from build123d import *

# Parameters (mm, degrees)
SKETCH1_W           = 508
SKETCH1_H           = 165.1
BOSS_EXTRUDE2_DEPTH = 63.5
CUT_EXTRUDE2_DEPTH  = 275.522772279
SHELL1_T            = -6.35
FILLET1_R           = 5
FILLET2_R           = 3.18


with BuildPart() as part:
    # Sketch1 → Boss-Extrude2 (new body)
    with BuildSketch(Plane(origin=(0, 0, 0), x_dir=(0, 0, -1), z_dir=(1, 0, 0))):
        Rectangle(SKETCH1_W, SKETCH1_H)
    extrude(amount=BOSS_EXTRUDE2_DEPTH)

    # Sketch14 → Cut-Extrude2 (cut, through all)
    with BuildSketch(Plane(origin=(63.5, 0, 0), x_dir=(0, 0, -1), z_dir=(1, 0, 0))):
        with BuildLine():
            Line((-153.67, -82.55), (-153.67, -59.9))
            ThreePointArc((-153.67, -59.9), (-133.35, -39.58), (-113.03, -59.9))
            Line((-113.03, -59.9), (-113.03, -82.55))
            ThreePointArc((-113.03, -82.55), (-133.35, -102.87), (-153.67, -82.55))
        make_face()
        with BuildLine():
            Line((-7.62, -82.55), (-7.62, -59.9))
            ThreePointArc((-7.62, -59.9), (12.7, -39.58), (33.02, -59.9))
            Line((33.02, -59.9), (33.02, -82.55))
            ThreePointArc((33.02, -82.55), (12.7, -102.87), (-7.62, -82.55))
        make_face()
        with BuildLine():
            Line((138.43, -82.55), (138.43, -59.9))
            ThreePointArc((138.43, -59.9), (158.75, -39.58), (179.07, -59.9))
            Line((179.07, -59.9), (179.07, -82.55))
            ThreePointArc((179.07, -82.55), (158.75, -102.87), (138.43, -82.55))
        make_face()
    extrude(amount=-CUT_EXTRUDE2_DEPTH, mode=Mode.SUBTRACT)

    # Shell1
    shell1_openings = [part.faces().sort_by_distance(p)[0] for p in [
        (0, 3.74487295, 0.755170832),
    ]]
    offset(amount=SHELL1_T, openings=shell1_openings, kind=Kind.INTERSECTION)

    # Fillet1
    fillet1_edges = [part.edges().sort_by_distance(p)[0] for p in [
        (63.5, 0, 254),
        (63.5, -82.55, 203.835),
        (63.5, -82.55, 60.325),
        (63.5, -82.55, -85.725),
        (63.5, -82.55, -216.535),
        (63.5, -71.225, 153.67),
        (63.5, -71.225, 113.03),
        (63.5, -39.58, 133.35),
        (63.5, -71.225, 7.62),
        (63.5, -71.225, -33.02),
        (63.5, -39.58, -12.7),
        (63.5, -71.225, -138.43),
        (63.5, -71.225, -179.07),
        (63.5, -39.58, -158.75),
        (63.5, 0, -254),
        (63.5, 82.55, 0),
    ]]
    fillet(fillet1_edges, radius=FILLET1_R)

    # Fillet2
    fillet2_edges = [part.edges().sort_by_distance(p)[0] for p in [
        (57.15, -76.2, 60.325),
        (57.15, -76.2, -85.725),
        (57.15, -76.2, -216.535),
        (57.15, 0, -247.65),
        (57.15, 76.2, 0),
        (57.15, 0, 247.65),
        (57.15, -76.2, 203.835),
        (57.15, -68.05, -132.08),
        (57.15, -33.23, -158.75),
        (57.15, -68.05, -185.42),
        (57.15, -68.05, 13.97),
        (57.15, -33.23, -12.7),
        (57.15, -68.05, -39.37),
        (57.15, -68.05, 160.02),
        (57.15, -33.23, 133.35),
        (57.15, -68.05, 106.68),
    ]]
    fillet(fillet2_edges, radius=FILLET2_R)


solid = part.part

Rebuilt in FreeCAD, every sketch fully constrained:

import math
import FreeCAD as App
import Part
import Sketcher

V = App.Vector
Q = App.Units.Quantity


def edges_at(feature, points):
    """Names of the edges that pass closest to the given points."""
    edges = feature.Shape.Edges
    near = lambda p: min(range(len(edges)), key=lambda i: edges[i].distToShape(Part.Vertex(*p))[0])
    return sorted({f"Edge{near(p) + 1}" for p in points})


def faces_at(feature, points):
    """Names of the faces that lie closest to the given points."""
    faces = feature.Shape.Faces
    near = lambda p: min(range(len(faces)), key=lambda i: faces[i].distToShape(Part.Vertex(*p))[0])
    return sorted({f"Face{near(p) + 1}" for p in points})


def add_polygon(sketch, points):
    """Adds a closed chain of lines whose ends are joined by coincident constraints."""
    first, n = sketch.GeometryCount, len(points)
    for a, b in zip(points, points[1:] + points[:1]):
        sketch.addGeometry(Part.LineSegment(App.Vector(*a, 0), App.Vector(*b, 0)), False)
    for i in range(n):
        sketch.addConstraint(Sketcher.Constraint("Coincident", first + i, 2, first + (i + 1) % n, 1))

doc = App.newDocument("Part")
body = doc.addObject("PartDesign::Body", "Body")

sketch1 = body.newObject("Sketcher::SketchObject", "Sketch")
sketch1.AttachmentSupport = (doc.getObject("YZ_Plane"), [""])
sketch1.MapMode = "FlatFace"
add_polygon(sketch1, [(82.55, 254), (-82.55, 254), (-82.55, -254), (82.55, -254)])
sketch1.addConstraint(Sketcher.Constraint("Horizontal", 0))
sketch1.addConstraint(Sketcher.Constraint("Vertical", 1))
sketch1.addConstraint(Sketcher.Constraint("Horizontal", 2))
sketch1.addConstraint(Sketcher.Constraint("Vertical", 3))
sketch1.addConstraint(Sketcher.Constraint("Symmetric", 0, 2, 2, 2, -1, 1))
sketch1.addConstraint(Sketcher.Constraint("DistanceY", 1, 2, 1, 1, Q("20 in")))
sketch1.addConstraint(Sketcher.Constraint("DistanceX", 0, 2, 0, 1, Q("6.5 in")))
pad1 = body.newObject("PartDesign::Pad", "Pad")
pad1.Profile = sketch1
pad1.Length = Q("2.5 in")

sketch2 = body.newObject("Sketcher::SketchObject", "Sketch001")
sketch2.AttachmentSupport = (doc.getObject("YZ_Plane"), [""])
sketch2.MapMode = "FlatFace"
sketch2.AttachmentOffset = App.Placement(V(0, 0, 2.5 * 25.4), App.Rotation())
sketch2.addGeometry(Part.LineSegment(V(-59.9, 153.67, 0), V(-82.55, 153.67, 0)), False)
sketch2.addGeometry(Part.ArcOfCircle(Part.Circle(V(-82.55, 133.35, 0), V(0, 0, 1), 20.32), math.radians(90), math.radians(270)), False)
sketch2.addGeometry(Part.LineSegment(V(-82.55, 113.03, 0), V(-59.9, 113.03, 0)), False)
sketch2.addGeometry(Part.ArcOfCircle(Part.Circle(V(-59.9, 133.35, 0), V(0, 0, 1), 20.32), math.radians(-90), math.radians(90)), False)
sketch2.addGeometry(Part.LineSegment(V(-59.9, 7.62, 0), V(-82.55, 7.62, 0)), False)
sketch2.addGeometry(Part.ArcOfCircle(Part.Circle(V(-82.55, -12.7, 0), V(0, 0, 1), 20.32), math.radians(90), math.radians(270)), False)
sketch2.addGeometry(Part.LineSegment(V(-82.55, -33.02, 0), V(-59.9, -33.02, 0)), False)
sketch2.addGeometry(Part.ArcOfCircle(Part.Circle(V(-59.9, -12.7, 0), V(0, 0, 1), 20.32), math.radians(-90), math.radians(90)), False)
sketch2.addGeometry(Part.LineSegment(V(-59.9, -138.43, 0), V(-82.55, -138.43, 0)), False)
sketch2.addGeometry(Part.ArcOfCircle(Part.Circle(V(-82.55, -158.75, 0), V(0, 0, 1), 20.32), math.radians(90), math.radians(270)), False)
sketch2.addGeometry(Part.LineSegment(V(-82.55, -179.07, 0), V(-59.9, -179.07, 0)), False)
sketch2.addGeometry(Part.ArcOfCircle(Part.Circle(V(-59.9, -158.75, 0), V(0, 0, 1), 20.32), math.radians(-90), math.radians(90)), False)
sketch2.addConstraint(Sketcher.Constraint("Tangent", 0, 2, 1, 1))
sketch2.addConstraint(Sketcher.Constraint("Tangent", 1, 2, 2, 1))
sketch2.addConstraint(Sketcher.Constraint("Tangent", 2, 2, 3, 1))
sketch2.addConstraint(Sketcher.Constraint("Tangent", 3, 2, 0, 1))
sketch2.addConstraint(Sketcher.Constraint("Tangent", 4, 2, 5, 1))
sketch2.addConstraint(Sketcher.Constraint("Tangent", 5, 2, 6, 1))
sketch2.addConstraint(Sketcher.Constraint("Tangent", 6, 2, 7, 1))
sketch2.addConstraint(Sketcher.Constraint("Tangent", 7, 2, 4, 1))
sketch2.addConstraint(Sketcher.Constraint("Tangent", 8, 2, 9, 1))
sketch2.addConstraint(Sketcher.Constraint("Tangent", 9, 2, 10, 1))
sketch2.addConstraint(Sketcher.Constraint("Tangent", 10, 2, 11, 1))
sketch2.addConstraint(Sketcher.Constraint("Tangent", 11, 2, 8, 1))
sketch2.addConstraint(Sketcher.Constraint("Horizontal", 0))
sketch2.addConstraint(Sketcher.Constraint("Horizontal", 2))
sketch2.addConstraint(Sketcher.Constraint("Horizontal", 4))
sketch2.addConstraint(Sketcher.Constraint("Horizontal", 6))
sketch2.addConstraint(Sketcher.Constraint("Horizontal", 8))
sketch2.addConstraint(Sketcher.Constraint("Horizontal", 10))
sketch2.addConstraint(Sketcher.Constraint("Equal", 3, 5))
sketch2.addConstraint(Sketcher.Constraint("Equal", 7, 9))
sketch2.addConstraint(Sketcher.Constraint("Vertical", 1, 3, 5, 3))
sketch2.addConstraint(Sketcher.Constraint("Vertical", 3, 3, 7, 3))
sketch2.addConstraint(Sketcher.Constraint("Vertical", 5, 3, 9, 3))
sketch2.addConstraint(Sketcher.Constraint("Vertical", 7, 3, 11, 3))
sketch2.addConstraint(Sketcher.Constraint("Radius", 1, Q("0.8 in")))
sketch2.addConstraint(Sketcher.Constraint("DistanceY", 5, 3, -1, 1, Q("0.5 in")))
sketch2.addConstraint(Sketcher.Constraint("DistanceY", 9, 3, 1, 3, Q("11.5 in")))
sketch2.addConstraint(Sketcher.Constraint("DistanceX", 1, 3, -1, 1, Q("3.25 in")))
sketch2.addConstraint(Sketcher.Constraint("DistanceY", -1, 1, 1, 3, Q("5.25 in")))
sketch2.addConstraint(Sketcher.Constraint("DistanceX", 0, 2, 0, 1, 22.65))
pocket1 = body.newObject("PartDesign::Pocket", "Pocket")
pocket1.Profile = sketch2
pocket1.Type = "ThroughAll"
doc.recompute()

thickness = body.newObject("PartDesign::Thickness", "Thickness")
thickness.Base = (pocket1, faces_at(pocket1, [(0, 0, 0)]))
thickness.Value = Q("0.25 in")
thickness.Reversed = True
thickness.Join = "Intersection"
doc.recompute()

fillet = body.newObject("PartDesign::Fillet", "Fillet")
fillet.Base = (thickness, edges_at(thickness, [
    (63.5, 0, 254),
    (63.5, -82.55, 203.835),
    (63.5, -82.55, 60.325),
    (63.5, -82.55, -85.725),
    (63.5, -82.55, -216.535),
    (63.5, -71.225, 153.67),
    (63.5, -71.225, 113.03),
    (63.5, -39.58, 133.35),
    (63.5, -71.225, 7.62),
    (63.5, -71.225, -33.02),
    (63.5, -39.58, -12.7),
    (63.5, -71.225, -138.43),
    (63.5, -71.225, -179.07),
    (63.5, -39.58, -158.75),
    (63.5, 0, -254),
    (63.5, 82.55, 0),
]))
fillet.Radius = 5
doc.recompute()

fillet2 = body.newObject("PartDesign::Fillet", "Fillet001")
fillet2.Base = (fillet, edges_at(fillet, [
    (57.15, -76.2, 60.325),
    (57.15, -76.2, -85.725),
    (57.15, -76.2, -216.535),
    (57.15, 0, -247.65),
    (57.15, 76.2, 0),
    (57.15, 0, 247.65),
    (57.15, -76.2, 203.835),
    (57.15, -68.05, -132.08),
    (57.15, -33.23, -158.75),
    (57.15, -68.05, -185.42),
    (57.15, -68.05, 13.97),
    (57.15, -33.23, -12.7),
    (57.15, -68.05, -39.37),
    (57.15, -68.05, 160.02),
    (57.15, -33.23, 133.35),
    (57.15, -68.05, 106.68),
]))
fillet2.Radius = 3.18

doc.recompute()
